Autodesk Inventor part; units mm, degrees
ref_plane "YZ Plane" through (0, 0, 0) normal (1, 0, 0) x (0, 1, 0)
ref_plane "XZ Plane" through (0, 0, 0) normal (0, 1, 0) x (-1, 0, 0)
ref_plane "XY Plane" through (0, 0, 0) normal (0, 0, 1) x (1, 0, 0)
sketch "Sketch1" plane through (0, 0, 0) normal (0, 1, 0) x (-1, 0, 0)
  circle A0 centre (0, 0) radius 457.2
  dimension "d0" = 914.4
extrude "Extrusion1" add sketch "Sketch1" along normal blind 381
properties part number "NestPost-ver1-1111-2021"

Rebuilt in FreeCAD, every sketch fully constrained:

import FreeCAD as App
import Part
import Sketcher
Q = App.Units.Quantity

doc = App.newDocument("Part")
body = doc.addObject("PartDesign::Body", "Body")

# Sketch on XZ plane
sketch1 = body.newObject("Sketcher::SketchObject", "Sketch")
sketch1.AttachmentSupport = (doc.getObject("XZ_Plane"), [""])
sketch1.MapMode = "FlatFace"
sketch1.addGeometry(Part.Circle(App.Vector(0, 0, 0), App.Vector(0, 0, 1), 457), False)
sketch1.addConstraint([
    Sketcher.Constraint("Coincident", 0, 3, -1, 1),
    Sketcher.Constraint("Diameter", 0, Q("36 in")),
])
pad1 = body.newObject("PartDesign::Pad", "Pad")
pad1.Profile = sketch1
pad1.Length = Q("15 in")
pad1.Reversed = True

doc.recompute()
